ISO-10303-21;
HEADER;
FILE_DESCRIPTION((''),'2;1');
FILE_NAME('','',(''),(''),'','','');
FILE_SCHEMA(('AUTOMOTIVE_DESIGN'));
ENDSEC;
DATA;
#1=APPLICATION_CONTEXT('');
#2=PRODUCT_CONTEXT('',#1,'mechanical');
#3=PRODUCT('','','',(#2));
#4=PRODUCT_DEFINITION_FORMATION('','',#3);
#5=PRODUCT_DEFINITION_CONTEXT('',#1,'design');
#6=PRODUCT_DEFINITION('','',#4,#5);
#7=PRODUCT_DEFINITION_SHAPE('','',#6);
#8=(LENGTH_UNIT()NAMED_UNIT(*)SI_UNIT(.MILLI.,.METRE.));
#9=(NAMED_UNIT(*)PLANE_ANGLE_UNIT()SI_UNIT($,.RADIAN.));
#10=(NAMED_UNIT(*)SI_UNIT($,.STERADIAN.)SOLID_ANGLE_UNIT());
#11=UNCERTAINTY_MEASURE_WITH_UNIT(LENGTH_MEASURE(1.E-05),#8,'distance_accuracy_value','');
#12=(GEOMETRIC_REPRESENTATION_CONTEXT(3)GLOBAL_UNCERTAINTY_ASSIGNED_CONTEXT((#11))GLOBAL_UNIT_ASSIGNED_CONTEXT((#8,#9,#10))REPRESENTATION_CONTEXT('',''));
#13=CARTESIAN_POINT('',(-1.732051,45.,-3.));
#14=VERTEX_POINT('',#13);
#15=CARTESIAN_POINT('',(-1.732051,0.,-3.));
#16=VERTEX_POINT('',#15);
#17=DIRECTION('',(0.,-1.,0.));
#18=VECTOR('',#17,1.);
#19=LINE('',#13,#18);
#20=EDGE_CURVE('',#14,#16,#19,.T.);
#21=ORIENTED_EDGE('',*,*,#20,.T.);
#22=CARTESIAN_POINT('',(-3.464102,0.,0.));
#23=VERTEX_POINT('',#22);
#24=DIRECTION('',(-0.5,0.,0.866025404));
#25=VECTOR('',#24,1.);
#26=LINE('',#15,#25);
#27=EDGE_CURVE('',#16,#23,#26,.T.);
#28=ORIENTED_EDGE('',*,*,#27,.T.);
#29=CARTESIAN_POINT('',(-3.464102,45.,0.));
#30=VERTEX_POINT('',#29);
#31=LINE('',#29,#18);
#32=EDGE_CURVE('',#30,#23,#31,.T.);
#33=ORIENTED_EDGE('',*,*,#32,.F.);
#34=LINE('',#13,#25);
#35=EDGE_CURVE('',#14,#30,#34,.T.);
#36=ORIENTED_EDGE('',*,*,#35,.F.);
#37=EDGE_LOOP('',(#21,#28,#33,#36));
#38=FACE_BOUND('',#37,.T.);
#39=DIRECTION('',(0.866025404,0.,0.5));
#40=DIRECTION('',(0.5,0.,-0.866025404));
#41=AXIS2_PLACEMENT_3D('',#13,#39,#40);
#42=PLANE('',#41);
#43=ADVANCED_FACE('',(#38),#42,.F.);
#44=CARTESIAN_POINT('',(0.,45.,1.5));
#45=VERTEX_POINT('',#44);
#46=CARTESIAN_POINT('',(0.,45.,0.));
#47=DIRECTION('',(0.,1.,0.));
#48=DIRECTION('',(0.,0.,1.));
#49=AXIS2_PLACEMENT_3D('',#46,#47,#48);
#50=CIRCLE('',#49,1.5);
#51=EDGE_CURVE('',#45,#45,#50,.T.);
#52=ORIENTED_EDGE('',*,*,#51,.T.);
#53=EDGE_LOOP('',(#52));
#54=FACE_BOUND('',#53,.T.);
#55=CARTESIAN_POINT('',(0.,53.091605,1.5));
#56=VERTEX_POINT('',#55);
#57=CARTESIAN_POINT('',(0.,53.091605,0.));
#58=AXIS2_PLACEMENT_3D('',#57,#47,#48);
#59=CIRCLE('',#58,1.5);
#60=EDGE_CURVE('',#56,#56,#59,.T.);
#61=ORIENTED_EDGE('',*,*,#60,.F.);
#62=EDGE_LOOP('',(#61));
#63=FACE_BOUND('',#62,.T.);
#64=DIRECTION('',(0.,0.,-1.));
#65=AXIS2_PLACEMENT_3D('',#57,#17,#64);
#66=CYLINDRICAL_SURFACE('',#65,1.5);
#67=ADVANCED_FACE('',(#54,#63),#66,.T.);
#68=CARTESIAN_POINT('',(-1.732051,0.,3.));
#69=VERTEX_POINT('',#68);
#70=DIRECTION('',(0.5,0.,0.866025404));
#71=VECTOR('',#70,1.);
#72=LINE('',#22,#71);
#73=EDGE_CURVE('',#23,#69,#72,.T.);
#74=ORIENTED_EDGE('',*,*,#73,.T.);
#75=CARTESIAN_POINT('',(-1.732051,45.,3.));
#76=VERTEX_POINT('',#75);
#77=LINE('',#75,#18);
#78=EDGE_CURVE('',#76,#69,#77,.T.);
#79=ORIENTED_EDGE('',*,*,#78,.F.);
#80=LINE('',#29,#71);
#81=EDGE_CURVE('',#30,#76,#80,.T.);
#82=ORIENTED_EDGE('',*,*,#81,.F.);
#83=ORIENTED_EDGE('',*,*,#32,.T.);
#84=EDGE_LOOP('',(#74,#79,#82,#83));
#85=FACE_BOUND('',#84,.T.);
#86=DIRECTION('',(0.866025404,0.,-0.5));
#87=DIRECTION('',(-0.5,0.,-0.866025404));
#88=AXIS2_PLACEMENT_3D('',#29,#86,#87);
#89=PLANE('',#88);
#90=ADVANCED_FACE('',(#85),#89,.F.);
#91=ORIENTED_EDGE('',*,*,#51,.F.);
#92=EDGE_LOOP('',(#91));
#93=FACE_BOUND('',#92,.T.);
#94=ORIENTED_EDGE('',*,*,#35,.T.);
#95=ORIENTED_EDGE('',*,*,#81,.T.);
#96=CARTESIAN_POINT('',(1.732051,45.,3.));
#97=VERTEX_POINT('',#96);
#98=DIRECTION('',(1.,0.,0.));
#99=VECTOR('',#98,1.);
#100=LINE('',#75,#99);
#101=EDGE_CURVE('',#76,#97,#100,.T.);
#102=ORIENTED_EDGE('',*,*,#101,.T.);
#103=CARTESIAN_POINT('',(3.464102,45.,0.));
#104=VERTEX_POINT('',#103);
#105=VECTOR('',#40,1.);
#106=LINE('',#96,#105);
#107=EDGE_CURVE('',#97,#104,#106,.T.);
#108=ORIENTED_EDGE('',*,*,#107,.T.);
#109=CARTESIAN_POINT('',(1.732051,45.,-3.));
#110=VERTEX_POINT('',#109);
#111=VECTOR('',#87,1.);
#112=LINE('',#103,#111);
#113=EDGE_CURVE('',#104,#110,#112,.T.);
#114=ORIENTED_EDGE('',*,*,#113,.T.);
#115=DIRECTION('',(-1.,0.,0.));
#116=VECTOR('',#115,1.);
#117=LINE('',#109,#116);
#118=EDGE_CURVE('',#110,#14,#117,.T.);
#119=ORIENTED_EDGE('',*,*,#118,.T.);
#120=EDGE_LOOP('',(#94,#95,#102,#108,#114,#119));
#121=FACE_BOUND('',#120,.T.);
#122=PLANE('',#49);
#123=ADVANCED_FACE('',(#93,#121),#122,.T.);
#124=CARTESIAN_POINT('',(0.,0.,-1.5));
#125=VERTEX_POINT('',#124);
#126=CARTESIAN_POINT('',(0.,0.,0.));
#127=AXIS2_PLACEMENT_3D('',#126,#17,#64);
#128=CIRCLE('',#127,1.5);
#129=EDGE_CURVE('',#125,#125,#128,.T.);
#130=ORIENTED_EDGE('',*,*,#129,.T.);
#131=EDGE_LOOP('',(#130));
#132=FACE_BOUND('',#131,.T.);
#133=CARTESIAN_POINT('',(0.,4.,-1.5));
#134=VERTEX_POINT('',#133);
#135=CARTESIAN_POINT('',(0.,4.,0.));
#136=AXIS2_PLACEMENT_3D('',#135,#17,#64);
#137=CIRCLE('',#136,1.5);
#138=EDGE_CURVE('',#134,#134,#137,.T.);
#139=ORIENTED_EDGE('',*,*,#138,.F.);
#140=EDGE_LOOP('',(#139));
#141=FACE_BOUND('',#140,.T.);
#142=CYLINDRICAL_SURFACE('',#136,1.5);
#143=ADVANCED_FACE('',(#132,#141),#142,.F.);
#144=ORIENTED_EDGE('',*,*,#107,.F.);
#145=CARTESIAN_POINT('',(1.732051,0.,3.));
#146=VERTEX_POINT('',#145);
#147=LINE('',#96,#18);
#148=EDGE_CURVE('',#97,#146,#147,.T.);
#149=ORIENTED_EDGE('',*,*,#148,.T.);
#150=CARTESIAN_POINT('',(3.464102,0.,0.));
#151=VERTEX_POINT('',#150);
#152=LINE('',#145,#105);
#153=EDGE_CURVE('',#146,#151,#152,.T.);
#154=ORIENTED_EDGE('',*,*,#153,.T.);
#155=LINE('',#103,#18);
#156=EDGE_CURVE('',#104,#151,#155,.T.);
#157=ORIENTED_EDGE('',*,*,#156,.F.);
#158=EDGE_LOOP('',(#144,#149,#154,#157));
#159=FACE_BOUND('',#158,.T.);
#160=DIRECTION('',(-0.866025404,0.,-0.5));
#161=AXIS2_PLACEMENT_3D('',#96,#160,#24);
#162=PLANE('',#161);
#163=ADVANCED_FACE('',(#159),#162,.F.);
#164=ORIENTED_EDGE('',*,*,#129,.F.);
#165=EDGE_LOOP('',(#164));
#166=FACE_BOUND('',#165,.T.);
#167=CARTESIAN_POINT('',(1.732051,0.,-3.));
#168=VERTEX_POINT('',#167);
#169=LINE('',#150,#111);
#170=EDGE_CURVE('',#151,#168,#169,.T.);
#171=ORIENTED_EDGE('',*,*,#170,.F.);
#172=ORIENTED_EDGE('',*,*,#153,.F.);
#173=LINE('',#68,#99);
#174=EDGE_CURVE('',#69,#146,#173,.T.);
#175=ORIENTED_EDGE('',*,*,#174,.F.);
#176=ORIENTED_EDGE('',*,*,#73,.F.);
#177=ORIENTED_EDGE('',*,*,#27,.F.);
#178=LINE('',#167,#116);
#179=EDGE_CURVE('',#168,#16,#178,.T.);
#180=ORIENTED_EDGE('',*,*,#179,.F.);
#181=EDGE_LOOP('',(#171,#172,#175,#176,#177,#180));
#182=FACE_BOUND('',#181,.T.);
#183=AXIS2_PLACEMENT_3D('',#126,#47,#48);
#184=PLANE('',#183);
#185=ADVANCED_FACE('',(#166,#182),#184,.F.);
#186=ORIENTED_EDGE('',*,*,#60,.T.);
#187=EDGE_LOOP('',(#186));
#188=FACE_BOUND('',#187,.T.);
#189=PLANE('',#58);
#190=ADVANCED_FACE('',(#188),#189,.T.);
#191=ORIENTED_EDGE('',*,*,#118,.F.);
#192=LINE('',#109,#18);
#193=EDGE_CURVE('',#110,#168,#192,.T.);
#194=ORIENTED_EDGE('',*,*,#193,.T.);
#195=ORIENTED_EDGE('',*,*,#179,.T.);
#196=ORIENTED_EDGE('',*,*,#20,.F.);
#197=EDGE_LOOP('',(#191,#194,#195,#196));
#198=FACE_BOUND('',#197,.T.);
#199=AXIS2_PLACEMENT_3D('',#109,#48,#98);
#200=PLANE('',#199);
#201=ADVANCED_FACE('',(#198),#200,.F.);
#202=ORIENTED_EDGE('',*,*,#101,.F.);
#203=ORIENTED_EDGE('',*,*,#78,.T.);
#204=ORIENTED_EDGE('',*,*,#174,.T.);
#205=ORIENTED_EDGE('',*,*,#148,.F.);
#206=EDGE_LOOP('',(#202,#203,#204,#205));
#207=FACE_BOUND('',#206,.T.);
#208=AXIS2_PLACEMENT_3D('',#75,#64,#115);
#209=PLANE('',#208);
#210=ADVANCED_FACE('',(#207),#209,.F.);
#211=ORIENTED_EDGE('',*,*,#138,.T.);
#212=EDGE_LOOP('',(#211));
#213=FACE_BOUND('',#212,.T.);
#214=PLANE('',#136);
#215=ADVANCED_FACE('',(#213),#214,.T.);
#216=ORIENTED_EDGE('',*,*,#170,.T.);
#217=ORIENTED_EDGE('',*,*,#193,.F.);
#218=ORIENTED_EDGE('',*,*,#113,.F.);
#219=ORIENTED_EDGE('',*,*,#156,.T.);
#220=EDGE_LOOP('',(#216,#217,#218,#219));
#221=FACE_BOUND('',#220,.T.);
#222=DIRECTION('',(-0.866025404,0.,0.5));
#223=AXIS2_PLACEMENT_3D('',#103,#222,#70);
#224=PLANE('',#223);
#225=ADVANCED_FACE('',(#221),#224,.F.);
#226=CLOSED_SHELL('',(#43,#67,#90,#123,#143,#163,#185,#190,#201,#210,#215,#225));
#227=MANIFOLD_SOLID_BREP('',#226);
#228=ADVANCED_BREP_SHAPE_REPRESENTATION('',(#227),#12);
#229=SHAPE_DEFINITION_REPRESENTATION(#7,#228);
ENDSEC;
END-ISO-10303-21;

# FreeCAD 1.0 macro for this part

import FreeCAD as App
import Part
import Sketcher
Q = App.Units.Quantity

doc = App.newDocument("Part")
body = doc.addObject("PartDesign::Body", "Body")

# Sketch on XZ plane
sketch1 = body.newObject("Sketcher::SketchObject", "Sketch")
sketch1.AttachmentSupport = (doc.getObject("XZ_Plane"), [""])
sketch1.MapMode = "FlatFace"
sketch1.addGeometry(Part.LineSegment(App.Vector(-3.5, 0, 0), App.Vector(-1.7, 3, 0)), False)
sketch1.addGeometry(Part.LineSegment(App.Vector(-1.7, 3, 0), App.Vector(1.7, 3, 0)), False)
sketch1.addGeometry(Part.LineSegment(App.Vector(1.7, 3, 0), App.Vector(3.5, 0, 0)), False)
sketch1.addGeometry(Part.LineSegment(App.Vector(3.5, 0, 0), App.Vector(1.7, -3, 0)), False)
sketch1.addGeometry(Part.LineSegment(App.Vector(1.7, -3, 0), App.Vector(-1.7, -3, 0)), False)
sketch1.addGeometry(Part.LineSegment(App.Vector(-1.7, -3, 0), App.Vector(-3.5, 0, 0)), False)
sketch1.addConstraint(Sketcher.Constraint("Coincident", 0, 2, 1, 1))
sketch1.addConstraint(Sketcher.Constraint("Coincident", 1, 2, 2, 1))
sketch1.addConstraint(Sketcher.Constraint("Coincident", 2, 2, 3, 1))
sketch1.addConstraint(Sketcher.Constraint("Coincident", 3, 2, 4, 1))
sketch1.addConstraint(Sketcher.Constraint("Coincident", 4, 2, 5, 1))
sketch1.addConstraint(Sketcher.Constraint("Coincident", 5, 2, 0, 1))
sketch1.addConstraint(Sketcher.Constraint("Horizontal", 1))
sketch1.addConstraint(Sketcher.Constraint("Horizontal", 4))
sketch1.addConstraint(Sketcher.Constraint("Symmetric", 0, 2, 3, 2, -1, 1))
sketch1.addConstraint(Sketcher.Constraint("Symmetric", 2, 2, 5, 2, -1, 1))
sketch1.addConstraint(Sketcher.Constraint("PointOnObject", 2, 2, -1))
sketch1.addConstraint(Sketcher.Constraint("Parallel", 2, 5))
sketch1.addConstraint(Sketcher.Constraint("Vertical", 1, 2, 3, 2))
sketch1.addConstraint(Sketcher.Constraint("Angle", 0, Q("60 deg")))
sketch1.addConstraint(Sketcher.Constraint("DistanceY", -1, 1, 0, 2, Q("3 mm")))
sketch1.addConstraint(Sketcher.Constraint("DistanceX", 1, 1, 1, 2, Q("3.464102 mm")))
pad1 = body.newObject("PartDesign::Pad", "Pad")
pad1.Profile = sketch1
pad1.Length = 45
pad1.Reversed = True

# Sketch on XZ plane
sketch2 = body.newObject("Sketcher::SketchObject", "Sketch001")
sketch2.AttachmentSupport = (doc.getObject("XZ_Plane"), [""])
sketch2.MapMode = "FlatFace"
sketch2.AttachmentOffset = App.Placement(App.Vector(0, 0, -45), App.Rotation())
sketch2.addGeometry(Part.Circle(App.Vector(0, 0, 0), App.Vector(0, 0, 1), 1.5), False)
sketch2.addConstraint(Sketcher.Constraint("Coincident", 0, 3, -1, 1))
sketch2.addConstraint(Sketcher.Constraint("Diameter", 0, Q("3 mm")))
pad2 = body.newObject("PartDesign::Pad", "Pad001")
pad2.Profile = sketch2
pad2.Length = 8.091605
pad2.Reversed = True

# Sketch on XZ plane
sketch3 = body.newObject("Sketcher::SketchObject", "Sketch002")
sketch3.AttachmentSupport = (doc.getObject("XZ_Plane"), [""])
sketch3.MapMode = "FlatFace"
sketch3.addGeometry(Part.Circle(App.Vector(0, 0, 0), App.Vector(0, 0, 1), 1.5), False)
sketch3.addConstraint(Sketcher.Constraint("Coincident", 0, 3, -1, 1))
sketch3.addConstraint(Sketcher.Constraint("Diameter", 0, Q("3 mm")))
pocket1 = body.newObject("PartDesign::Pocket", "Pocket")
pocket1.Profile = sketch3
pocket1.Length = 4

doc.recompute()
